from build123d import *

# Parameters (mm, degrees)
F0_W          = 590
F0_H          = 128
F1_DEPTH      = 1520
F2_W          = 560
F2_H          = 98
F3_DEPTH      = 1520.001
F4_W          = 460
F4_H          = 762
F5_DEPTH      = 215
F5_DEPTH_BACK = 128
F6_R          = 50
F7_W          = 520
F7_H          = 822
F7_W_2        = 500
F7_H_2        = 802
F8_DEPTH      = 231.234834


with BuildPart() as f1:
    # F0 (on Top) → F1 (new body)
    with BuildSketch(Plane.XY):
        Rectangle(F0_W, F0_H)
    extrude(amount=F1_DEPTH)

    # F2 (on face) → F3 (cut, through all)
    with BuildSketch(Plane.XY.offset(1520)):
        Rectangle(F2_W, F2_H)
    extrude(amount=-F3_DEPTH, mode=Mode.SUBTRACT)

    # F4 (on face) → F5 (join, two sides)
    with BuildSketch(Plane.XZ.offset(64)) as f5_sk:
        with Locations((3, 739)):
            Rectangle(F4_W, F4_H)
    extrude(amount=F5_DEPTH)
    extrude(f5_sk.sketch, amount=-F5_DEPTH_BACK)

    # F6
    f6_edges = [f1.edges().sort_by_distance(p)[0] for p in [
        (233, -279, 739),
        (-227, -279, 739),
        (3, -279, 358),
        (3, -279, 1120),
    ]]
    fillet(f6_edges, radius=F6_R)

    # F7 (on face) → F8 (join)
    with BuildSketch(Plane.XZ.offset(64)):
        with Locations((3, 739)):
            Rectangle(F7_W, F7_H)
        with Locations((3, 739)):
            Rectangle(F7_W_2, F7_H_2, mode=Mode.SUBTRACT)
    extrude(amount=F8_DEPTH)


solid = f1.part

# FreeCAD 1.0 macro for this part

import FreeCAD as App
import Part
import Sketcher
from FreeCAD import Vector


def edges_at(feature, points):
    """Names of the edges that pass closest to the given points."""
    edges = feature.Shape.Edges
    near = lambda p: min(range(len(edges)), key=lambda i: edges[i].distToShape(Part.Vertex(*p))[0])
    return sorted({f"Edge{near(p) + 1}" for p in points})


def add_polygon(sketch, points):
    """Adds a closed chain of lines whose ends are joined by coincident constraints."""
    first, n = sketch.GeometryCount, len(points)
    for a, b in zip(points, points[1:] + points[:1]):
        sketch.addGeometry(Part.LineSegment(App.Vector(*a, 0), App.Vector(*b, 0)), False)
    for i in range(n):
        sketch.addConstraint(Sketcher.Constraint("Coincident", first + i, 2, first + (i + 1) % n, 1))

doc = App.newDocument("Part")
body = doc.addObject("PartDesign::Body", "Body")

sketch1 = body.newObject("Sketcher::SketchObject", "Sketch")
sketch1.AttachmentSupport = (doc.getObject("XY_Plane"), [""])
sketch1.MapMode = "FlatFace"
add_polygon(sketch1, [(-295, 64), (-295, -64), (295, -64), (295, 64)])
sketch1.addConstraint(Sketcher.Constraint("Vertical", 0))
sketch1.addConstraint(Sketcher.Constraint("Horizontal", 1))
sketch1.addConstraint(Sketcher.Constraint("Vertical", 2))
sketch1.addConstraint(Sketcher.Constraint("Horizontal", 3))
sketch1.addConstraint(Sketcher.Constraint("Symmetric", 0, 2, 2, 2, -1, 1))
sketch1.addConstraint(Sketcher.Constraint("DistanceX", 1, 1, 1, 2, 590.0))
sketch1.addConstraint(Sketcher.Constraint("DistanceY", 0, 2, 0, 1, 128.0))
pad1 = body.newObject("PartDesign::Pad", "Pad")
pad1.Profile = sketch1
pad1.Length = 1520

sketch2 = body.newObject("Sketcher::SketchObject", "Sketch001")
sketch2.AttachmentSupport = (doc.getObject("XY_Plane"), [""])
sketch2.MapMode = "FlatFace"
sketch2.AttachmentOffset = App.Placement(Vector(0, 0, 1520), App.Rotation())
add_polygon(sketch2, [(-280, 49), (-280, -49), (280, -49), (280, 49)])
sketch2.addConstraint(Sketcher.Constraint("Vertical", 0))
sketch2.addConstraint(Sketcher.Constraint("Horizontal", 1))
sketch2.addConstraint(Sketcher.Constraint("Vertical", 2))
sketch2.addConstraint(Sketcher.Constraint("Horizontal", 3))
sketch2.addConstraint(Sketcher.Constraint("Symmetric", 0, 2, 2, 2, -1, 1))
sketch2.addConstraint(Sketcher.Constraint("DistanceX", 1, 1, 1, 2, 560.0))
sketch2.addConstraint(Sketcher.Constraint("DistanceY", 0, 2, 0, 1, 98.0))
pocket1 = body.newObject("PartDesign::Pocket", "Pocket")
pocket1.Profile = sketch2
pocket1.Type = "ThroughAll"

sketch3 = body.newObject("Sketcher::SketchObject", "Sketch002")
sketch3.AttachmentSupport = (doc.getObject("XZ_Plane"), [""])
sketch3.MapMode = "FlatFace"
sketch3.AttachmentOffset = App.Placement(Vector(0, 0, 64), App.Rotation())
add_polygon(sketch3, [(-227, 1120), (-227, 358), (233, 358), (233, 1120)])
sketch3.addConstraint(Sketcher.Constraint("Vertical", 0))
sketch3.addConstraint(Sketcher.Constraint("Horizontal", 1))
sketch3.addConstraint(Sketcher.Constraint("Vertical", 2))
sketch3.addConstraint(Sketcher.Constraint("Horizontal", 3))
sketch3.addConstraint(Sketcher.Constraint("DistanceX", 1, 1, 1, 2, 460.0))
sketch3.addConstraint(Sketcher.Constraint("DistanceY", 0, 2, 0, 1, 762.0))
sketch3.addConstraint(Sketcher.Constraint("DistanceX", 0, 2, -1, 1, 227.0))
sketch3.addConstraint(Sketcher.Constraint("DistanceY", -1, 1, 0, 2, 358.0))
pad2 = body.newObject("PartDesign::Pad", "Pad001")
pad2.Profile = sketch3
pad2.Type = "TwoLengths"
pad2.Length = 215
pad2.Length2 = 128
doc.recompute()

fillet = body.newObject("PartDesign::Fillet", "Fillet")
fillet.Base = (pad2, edges_at(pad2, [
    (233, -279, 739),
    (-227, -279, 739),
    (3, -279, 358),
    (3, -279, 1120),
]))
fillet.Radius = 50

sketch4 = body.newObject("Sketcher::SketchObject", "Sketch003")
sketch4.AttachmentSupport = (doc.getObject("XZ_Plane"), [""])
sketch4.MapMode = "FlatFace"
sketch4.AttachmentOffset = App.Placement(Vector(0, 0, 64), App.Rotation())
add_polygon(sketch4, [(-257, 1150), (-257, 328), (263, 328), (263, 1150)])
add_polygon(sketch4, [(253, 338), (-247, 338), (-247, 1140), (253, 1140)])
sketch4.addConstraint(Sketcher.Constraint("Vertical", 0))
sketch4.addConstraint(Sketcher.Constraint("Horizontal", 1))
sketch4.addConstraint(Sketcher.Constraint("Vertical", 2))
sketch4.addConstraint(Sketcher.Constraint("Horizontal", 3))
sketch4.addConstraint(Sketcher.Constraint("Horizontal", 4))
sketch4.addConstraint(Sketcher.Constraint("Vertical", 5))
sketch4.addConstraint(Sketcher.Constraint("Horizontal", 6))
sketch4.addConstraint(Sketcher.Constraint("Vertical", 7))
sketch4.addConstraint(Sketcher.Constraint("DistanceX", 1, 1, 1, 2, 520.0))
sketch4.addConstraint(Sketcher.Constraint("DistanceX", 4, 2, 4, 1, 500.0))
sketch4.addConstraint(Sketcher.Constraint("DistanceY", 0, 2, 0, 1, 822.0))
sketch4.addConstraint(Sketcher.Constraint("DistanceY", 5, 1, 5, 2, 802.0))
sketch4.addConstraint(Sketcher.Constraint("DistanceX", 0, 2, -1, 1, 257.0))
sketch4.addConstraint(Sketcher.Constraint("DistanceY", -1, 1, 0, 2, 328.0))
sketch4.addConstraint(Sketcher.Constraint("DistanceX", 4, 2, -1, 1, 247.0))
sketch4.addConstraint(Sketcher.Constraint("DistanceY", -1, 1, 4, 2, 338.0))
pad3 = body.newObject("PartDesign::Pad", "Pad002")
pad3.Profile = sketch4
pad3.Length = 231.234834

doc.recompute()
